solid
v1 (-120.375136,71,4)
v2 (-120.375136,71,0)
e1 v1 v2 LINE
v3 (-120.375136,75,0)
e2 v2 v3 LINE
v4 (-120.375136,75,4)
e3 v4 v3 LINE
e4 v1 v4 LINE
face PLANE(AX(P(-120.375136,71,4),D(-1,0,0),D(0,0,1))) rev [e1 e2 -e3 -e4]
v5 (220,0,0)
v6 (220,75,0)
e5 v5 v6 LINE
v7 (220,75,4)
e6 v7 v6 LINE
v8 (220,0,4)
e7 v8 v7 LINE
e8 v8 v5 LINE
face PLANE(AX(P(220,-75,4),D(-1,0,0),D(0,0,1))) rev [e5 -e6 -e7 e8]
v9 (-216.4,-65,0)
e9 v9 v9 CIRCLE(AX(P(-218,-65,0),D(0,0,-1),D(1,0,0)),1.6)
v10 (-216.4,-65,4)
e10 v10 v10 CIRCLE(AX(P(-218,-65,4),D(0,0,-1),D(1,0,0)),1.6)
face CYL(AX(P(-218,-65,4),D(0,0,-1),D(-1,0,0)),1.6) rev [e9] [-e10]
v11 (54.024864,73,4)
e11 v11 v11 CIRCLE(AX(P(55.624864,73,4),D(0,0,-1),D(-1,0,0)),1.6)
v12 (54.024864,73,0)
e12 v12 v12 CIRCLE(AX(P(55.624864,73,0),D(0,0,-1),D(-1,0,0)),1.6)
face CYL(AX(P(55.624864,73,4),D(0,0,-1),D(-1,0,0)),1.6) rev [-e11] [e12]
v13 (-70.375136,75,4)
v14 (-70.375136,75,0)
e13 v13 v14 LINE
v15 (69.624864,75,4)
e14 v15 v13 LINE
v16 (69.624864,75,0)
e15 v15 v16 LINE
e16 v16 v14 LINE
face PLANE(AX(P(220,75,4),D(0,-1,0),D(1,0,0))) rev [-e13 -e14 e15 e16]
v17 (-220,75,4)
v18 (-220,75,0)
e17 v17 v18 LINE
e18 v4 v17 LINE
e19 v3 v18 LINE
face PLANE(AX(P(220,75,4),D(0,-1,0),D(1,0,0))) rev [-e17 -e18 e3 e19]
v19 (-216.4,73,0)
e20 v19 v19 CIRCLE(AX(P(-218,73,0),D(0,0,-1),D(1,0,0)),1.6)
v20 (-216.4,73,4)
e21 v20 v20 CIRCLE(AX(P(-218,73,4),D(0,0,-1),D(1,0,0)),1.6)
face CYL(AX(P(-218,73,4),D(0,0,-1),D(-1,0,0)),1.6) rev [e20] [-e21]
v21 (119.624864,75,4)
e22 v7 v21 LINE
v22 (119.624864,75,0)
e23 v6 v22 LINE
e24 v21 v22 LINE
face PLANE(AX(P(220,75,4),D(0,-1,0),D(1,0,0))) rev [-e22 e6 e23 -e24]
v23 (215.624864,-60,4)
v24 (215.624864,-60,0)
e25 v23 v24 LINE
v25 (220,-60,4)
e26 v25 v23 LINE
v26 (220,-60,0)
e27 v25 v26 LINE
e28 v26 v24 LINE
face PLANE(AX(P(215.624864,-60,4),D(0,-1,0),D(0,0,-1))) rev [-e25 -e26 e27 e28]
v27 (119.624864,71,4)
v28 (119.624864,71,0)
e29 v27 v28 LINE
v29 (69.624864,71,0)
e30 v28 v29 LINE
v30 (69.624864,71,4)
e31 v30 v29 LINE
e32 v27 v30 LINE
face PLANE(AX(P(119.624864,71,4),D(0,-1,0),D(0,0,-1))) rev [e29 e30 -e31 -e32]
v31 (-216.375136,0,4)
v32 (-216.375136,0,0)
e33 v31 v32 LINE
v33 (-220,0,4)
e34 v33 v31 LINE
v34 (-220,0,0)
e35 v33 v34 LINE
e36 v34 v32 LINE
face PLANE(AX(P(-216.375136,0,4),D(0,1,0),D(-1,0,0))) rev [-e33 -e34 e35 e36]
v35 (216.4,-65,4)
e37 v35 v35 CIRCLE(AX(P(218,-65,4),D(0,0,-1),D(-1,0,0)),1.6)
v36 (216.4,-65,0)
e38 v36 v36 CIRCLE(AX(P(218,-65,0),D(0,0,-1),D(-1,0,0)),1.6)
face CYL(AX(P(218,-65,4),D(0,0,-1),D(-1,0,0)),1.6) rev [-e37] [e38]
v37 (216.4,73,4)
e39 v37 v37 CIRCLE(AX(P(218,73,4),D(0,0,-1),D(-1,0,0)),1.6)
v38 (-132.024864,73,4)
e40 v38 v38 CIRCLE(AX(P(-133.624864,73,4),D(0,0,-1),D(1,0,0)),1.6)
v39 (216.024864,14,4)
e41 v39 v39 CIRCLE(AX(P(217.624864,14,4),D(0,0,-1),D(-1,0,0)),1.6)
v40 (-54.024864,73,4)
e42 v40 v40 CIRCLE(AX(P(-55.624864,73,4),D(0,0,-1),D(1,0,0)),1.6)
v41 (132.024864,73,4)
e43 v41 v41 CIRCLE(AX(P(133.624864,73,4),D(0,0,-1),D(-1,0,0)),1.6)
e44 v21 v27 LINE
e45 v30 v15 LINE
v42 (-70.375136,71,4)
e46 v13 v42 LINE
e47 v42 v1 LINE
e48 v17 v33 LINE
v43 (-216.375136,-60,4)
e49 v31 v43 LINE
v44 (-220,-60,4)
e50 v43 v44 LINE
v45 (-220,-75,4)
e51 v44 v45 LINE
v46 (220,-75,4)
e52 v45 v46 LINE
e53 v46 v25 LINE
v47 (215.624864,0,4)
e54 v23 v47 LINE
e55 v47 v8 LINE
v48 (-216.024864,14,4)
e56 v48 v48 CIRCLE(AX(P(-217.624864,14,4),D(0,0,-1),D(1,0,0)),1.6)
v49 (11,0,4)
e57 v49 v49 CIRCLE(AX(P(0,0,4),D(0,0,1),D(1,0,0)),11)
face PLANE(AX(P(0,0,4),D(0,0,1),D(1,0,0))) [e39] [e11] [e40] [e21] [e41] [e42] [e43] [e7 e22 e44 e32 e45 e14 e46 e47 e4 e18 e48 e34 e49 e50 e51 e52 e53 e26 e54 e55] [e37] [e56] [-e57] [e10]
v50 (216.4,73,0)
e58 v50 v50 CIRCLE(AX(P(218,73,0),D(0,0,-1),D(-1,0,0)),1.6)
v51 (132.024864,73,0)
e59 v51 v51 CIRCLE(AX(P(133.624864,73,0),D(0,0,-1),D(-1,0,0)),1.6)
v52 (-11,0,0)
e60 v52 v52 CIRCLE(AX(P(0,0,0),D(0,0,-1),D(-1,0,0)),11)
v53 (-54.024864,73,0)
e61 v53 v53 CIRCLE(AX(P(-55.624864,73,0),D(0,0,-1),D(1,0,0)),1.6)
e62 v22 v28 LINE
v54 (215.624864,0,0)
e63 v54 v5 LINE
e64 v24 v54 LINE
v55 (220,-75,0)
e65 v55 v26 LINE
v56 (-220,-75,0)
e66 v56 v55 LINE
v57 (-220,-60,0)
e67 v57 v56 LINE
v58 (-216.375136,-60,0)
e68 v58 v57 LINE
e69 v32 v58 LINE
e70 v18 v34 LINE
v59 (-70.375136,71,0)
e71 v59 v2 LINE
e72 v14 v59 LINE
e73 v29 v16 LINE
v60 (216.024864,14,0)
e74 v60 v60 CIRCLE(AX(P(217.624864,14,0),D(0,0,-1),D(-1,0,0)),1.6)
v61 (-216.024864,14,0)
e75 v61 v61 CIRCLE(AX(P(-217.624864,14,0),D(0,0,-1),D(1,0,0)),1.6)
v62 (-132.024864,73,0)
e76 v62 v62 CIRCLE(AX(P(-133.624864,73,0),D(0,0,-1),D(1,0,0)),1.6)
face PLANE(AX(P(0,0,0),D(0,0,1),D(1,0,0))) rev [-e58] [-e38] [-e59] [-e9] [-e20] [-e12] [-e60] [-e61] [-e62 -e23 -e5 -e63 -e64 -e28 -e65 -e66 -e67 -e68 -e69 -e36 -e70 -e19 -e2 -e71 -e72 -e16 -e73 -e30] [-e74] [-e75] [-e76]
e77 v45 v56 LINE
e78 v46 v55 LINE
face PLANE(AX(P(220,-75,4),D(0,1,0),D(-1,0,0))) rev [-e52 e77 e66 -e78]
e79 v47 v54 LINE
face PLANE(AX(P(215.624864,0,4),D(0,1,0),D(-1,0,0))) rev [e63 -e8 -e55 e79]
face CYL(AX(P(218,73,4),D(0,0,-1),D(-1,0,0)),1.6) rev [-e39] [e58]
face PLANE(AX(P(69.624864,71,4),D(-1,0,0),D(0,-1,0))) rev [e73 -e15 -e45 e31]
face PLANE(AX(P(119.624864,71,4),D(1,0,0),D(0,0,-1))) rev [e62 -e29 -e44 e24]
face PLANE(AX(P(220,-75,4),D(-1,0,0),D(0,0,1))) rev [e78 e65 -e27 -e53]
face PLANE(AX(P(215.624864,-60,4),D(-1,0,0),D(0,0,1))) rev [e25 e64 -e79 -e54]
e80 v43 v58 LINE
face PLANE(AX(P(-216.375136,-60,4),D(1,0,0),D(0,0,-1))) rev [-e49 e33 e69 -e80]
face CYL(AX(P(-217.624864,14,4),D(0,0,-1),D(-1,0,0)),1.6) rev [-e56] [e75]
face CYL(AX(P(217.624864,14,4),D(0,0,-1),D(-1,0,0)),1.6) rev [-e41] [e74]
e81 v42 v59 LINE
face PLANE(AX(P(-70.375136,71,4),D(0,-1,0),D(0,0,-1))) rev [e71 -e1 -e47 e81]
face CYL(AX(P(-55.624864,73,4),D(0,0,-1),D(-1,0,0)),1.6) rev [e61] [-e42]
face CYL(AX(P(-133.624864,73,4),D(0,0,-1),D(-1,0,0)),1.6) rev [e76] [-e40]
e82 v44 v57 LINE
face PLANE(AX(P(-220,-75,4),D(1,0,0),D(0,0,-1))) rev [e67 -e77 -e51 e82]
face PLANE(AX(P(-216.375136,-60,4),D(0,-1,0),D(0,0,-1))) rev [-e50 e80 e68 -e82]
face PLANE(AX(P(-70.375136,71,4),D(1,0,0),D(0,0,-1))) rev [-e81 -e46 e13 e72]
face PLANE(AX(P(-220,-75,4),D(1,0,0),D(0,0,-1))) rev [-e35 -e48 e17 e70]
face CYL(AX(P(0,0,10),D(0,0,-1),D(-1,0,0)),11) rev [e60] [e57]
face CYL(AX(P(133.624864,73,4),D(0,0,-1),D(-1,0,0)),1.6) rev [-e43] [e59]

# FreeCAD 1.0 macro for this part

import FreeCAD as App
import Part
import Sketcher
Q = App.Units.Quantity


def add_polygon(sketch, points):
    """Adds a closed chain of lines whose ends are joined by coincident constraints."""
    first, n = sketch.GeometryCount, len(points)
    for a, b in zip(points, points[1:] + points[:1]):
        sketch.addGeometry(Part.LineSegment(App.Vector(*a, 0), App.Vector(*b, 0)), False)
    for i in range(n):
        sketch.addConstraint(Sketcher.Constraint("Coincident", first + i, 2, first + (i + 1) % n, 1))

doc = App.newDocument("Part")
body = doc.addObject("PartDesign::Body", "Body")

sketch1 = body.newObject("Sketcher::SketchObject", "Sketch")
sketch1.AttachmentSupport = (doc.getObject("XY_Plane"), [""])
sketch1.MapMode = "FlatFace"
add_polygon(sketch1, [(-220, 75), (-220, -75), (220, -75), (220, 75)])
sketch1.addConstraint(Sketcher.Constraint("Vertical", 0))
sketch1.addConstraint(Sketcher.Constraint("Horizontal", 1))
sketch1.addConstraint(Sketcher.Constraint("Vertical", 2))
sketch1.addConstraint(Sketcher.Constraint("Horizontal", 3))
sketch1.addConstraint(Sketcher.Constraint("Symmetric", 0, 2, 2, 2, -1, 1))
sketch1.addConstraint(Sketcher.Constraint("DistanceX", 1, 1, 1, 2, Q("440 mm")))
sketch1.addConstraint(Sketcher.Constraint("DistanceY", 0, 2, 0, 1, Q("150 mm")))
pad1 = body.newObject("PartDesign::Pad", "Pad")
pad1.Profile = sketch1
pad1.Length = 4

sketch2 = body.newObject("Sketcher::SketchObject", "Sketch001")
sketch2.AttachmentSupport = (doc.getObject("XY_Plane"), [""])
sketch2.MapMode = "FlatFace"
sketch2.addGeometry(Part.Circle(App.Vector(0, 0, 0), App.Vector(0, 0, 1), 11), False)
sketch2.addConstraint(Sketcher.Constraint("Coincident", 0, 3, -1, 1))
sketch2.addConstraint(Sketcher.Constraint("Diameter", 0, Q("22 mm")))
pocket1 = body.newObject("PartDesign::Pocket", "Pocket")
pocket1.Profile = sketch2
pocket1.Length = 10
pocket1.Reversed = True

sketch3 = body.newObject("Sketcher::SketchObject", "Sketch002")
sketch3.AttachmentSupport = (doc.getObject("XY_Plane"), [""])
sketch3.MapMode = "FlatFace"
add_polygon(sketch3, [(-216.375136, 0), (-216.375136, -60), (-220, -60), (-220, 0)])
add_polygon(sketch3, [(220, 0), (220, -60), (215.624864, -60), (215.624864, 0)])
add_polygon(sketch3, [(-70.375136, 75), (-70.375136, 71), (-120.375136, 71), (-120.375136, 75)])
add_polygon(sketch3, [(119.624864, 75), (119.624864, 71), (69.624864, 71), (69.624864, 75)])
sketch3.addConstraint(Sketcher.Constraint("Vertical", 0))
sketch3.addConstraint(Sketcher.Constraint("Horizontal", 1))
sketch3.addConstraint(Sketcher.Constraint("Vertical", 2))
sketch3.addConstraint(Sketcher.Constraint("Horizontal", 3))
sketch3.addConstraint(Sketcher.Constraint("Vertical", 4))
sketch3.addConstraint(Sketcher.Constraint("Horizontal", 5))
sketch3.addConstraint(Sketcher.Constraint("Vertical", 6))
sketch3.addConstraint(Sketcher.Constraint("Horizontal", 7))
sketch3.addConstraint(Sketcher.Constraint("Vertical", 8))
sketch3.addConstraint(Sketcher.Constraint("Horizontal", 9))
sketch3.addConstraint(Sketcher.Constraint("Vertical", 10))
sketch3.addConstraint(Sketcher.Constraint("Horizontal", 11))
sketch3.addConstraint(Sketcher.Constraint("Vertical", 12))
sketch3.addConstraint(Sketcher.Constraint("Horizontal", 13))
sketch3.addConstraint(Sketcher.Constraint("Vertical", 14))
sketch3.addConstraint(Sketcher.Constraint("Horizontal", 15))
sketch3.addConstraint(Sketcher.Constraint("Symmetric", 2, 2, 7, 2, -1, 1))
sketch3.addConstraint(Sketcher.Constraint("PointOnObject", 2, 2, -1))
sketch3.addConstraint(Sketcher.Constraint("Horizontal", 1, 2, 4, 2))
sketch3.addConstraint(Sketcher.Constraint("Horizontal", 9, 2, 12, 2))
sketch3.addConstraint(Sketcher.Constraint("Horizontal", 11, 2, 14, 2))
sketch3.addConstraint(Sketcher.Constraint("Equal", 11, 13))
sketch3.addConstraint(Sketcher.Constraint("DistanceX", 9, 2, 9, 1, Q("50 mm")))
sketch3.addConstraint(Sketcher.Constraint("DistanceY", 0, 2, 0, 1, Q("60 mm")))
sketch3.addConstraint(Sketcher.Constraint("DistanceY", 8, 2, 8, 1, Q("4 mm")))
sketch3.addConstraint(Sketcher.Constraint("DistanceX", 1, 2, -1, 1, Q("220 mm")))
sketch3.addConstraint(Sketcher.Constraint("DistanceY", -1, 1, 8, 2, Q("71 mm")))
sketch3.addConstraint(Sketcher.Constraint("DistanceX", 0, 2, 5, 2, Q("432 mm")))
sketch3.addConstraint(Sketcher.Constraint("DistanceX", 3, 2, 8, 2, Q("146 mm")))
sketch3.addConstraint(Sketcher.Constraint("DistanceX", 12, 2, 6, 2, Q("96 mm")))
sketch3.addConstraint(Sketcher.Constraint("DistanceX", 1, 2, 1, 1, Q("3.624864 mm")))
pocket2 = body.newObject("PartDesign::Pocket", "Pocket001")
pocket2.Profile = sketch3
pocket2.Length = 4
pocket2.Reversed = True

sketch4 = body.newObject("Sketcher::SketchObject", "Sketch003")
sketch4.AttachmentSupport = (doc.getObject("XY_Plane"), [""])
sketch4.MapMode = "FlatFace"
sketch4.addGeometry(Part.Circle(App.Vector(217.624864, 14, 0), App.Vector(0, 0, 1), 1.6), False)
sketch4.addGeometry(Part.Circle(App.Vector(218, 73, 0), App.Vector(0, 0, 1), 1.6), False)
sketch4.addGeometry(Part.Circle(App.Vector(218, -65, 0), App.Vector(0, 0, 1), 1.6), False)
sketch4.addGeometry(Part.Circle(App.Vector(133.624864, 73, 0), App.Vector(0, 0, 1), 1.6), False)
sketch4.addGeometry(Part.Circle(App.Vector(55.624864, 73, 0), App.Vector(0, 0, 1), 1.6), False)
sketch4.addGeometry(Part.Circle(App.Vector(-55.624864, 73, 0), App.Vector(0, 0, 1), 1.6), False)
sketch4.addGeometry(Part.Circle(App.Vector(-133.624864, 73, 0), App.Vector(0, 0, 1), 1.6), False)
sketch4.addGeometry(Part.Circle(App.Vector(-218, -65, 0), App.Vector(0, 0, 1), 1.6), False)
sketch4.addGeometry(Part.Circle(App.Vector(-218, 73, 0), App.Vector(0, 0, 1), 1.6), False)
sketch4.addGeometry(Part.Circle(App.Vector(-217.624864, 14, 0), App.Vector(0, 0, 1), 1.6), False)
sketch4.addConstraint(Sketcher.Constraint("Equal", 0, 1))
sketch4.addConstraint(Sketcher.Constraint("Equal", 1, 2))
sketch4.addConstraint(Sketcher.Constraint("Equal", 2, 3))
sketch4.addConstraint(Sketcher.Constraint("Equal", 3, 4))
sketch4.addConstraint(Sketcher.Constraint("Equal", 4, 5))
sketch4.addConstraint(Sketcher.Constraint("Equal", 5, 6))
sketch4.addConstraint(Sketcher.Constraint("Equal", 6, 7))
sketch4.addConstraint(Sketcher.Constraint("Equal", 7, 8))
sketch4.addConstraint(Sketcher.Constraint("Equal", 8, 9))
sketch4.addConstraint(Sketcher.Constraint("Symmetric", 4, 3, 5, 3, -2))
sketch4.addConstraint(Sketcher.Constraint("Symmetric", 3, 3, 6, 3, -2))
sketch4.addConstraint(Sketcher.Constraint("Symmetric", 2, 3, 7, 3, -2))
sketch4.addConstraint(Sketcher.Constraint("Symmetric", 1, 3, 8, 3, -2))
sketch4.addConstraint(Sketcher.Constraint("Symmetric", 0, 3, 9, 3, -2))
sketch4.addConstraint(Sketcher.Constraint("Horizontal", 1, 3, 3, 3))
sketch4.addConstraint(Sketcher.Constraint("Horizontal", 3, 3, 4, 3))
sketch4.addConstraint(Sketcher.Constraint("Vertical", 1, 3, 2, 3))
sketch4.addConstraint(Sketcher.Constraint("Diameter", 0, Q("3.2 mm")))
sketch4.addConstraint(Sketcher.Constraint("DistanceY", -1, 1, 0, 3, Q("14 mm")))
sketch4.addConstraint(Sketcher.Constraint("DistanceX", -1, 1, 1, 3, Q("218 mm")))
sketch4.addConstraint(Sketcher.Constraint("DistanceY", -1, 1, 1, 3, Q("73 mm")))
sketch4.addConstraint(Sketcher.Constraint("DistanceY", 2, 3, -1, 1, Q("65 mm")))
sketch4.addConstraint(Sketcher.Constraint("DistanceX", 3, 3, 0, 3, Q("84 mm")))
sketch4.addConstraint(Sketcher.Constraint("DistanceX", 4, 3, 3, 3, Q("78 mm")))
sketch4.addConstraint(Sketcher.Constraint("DistanceX", 5, 3, 4, 3, Q("111.249728 mm")))
pocket3 = body.newObject("PartDesign::Pocket", "Pocket002")
pocket3.Profile = sketch4
pocket3.Length = 4
pocket3.Reversed = True

doc.recompute()
